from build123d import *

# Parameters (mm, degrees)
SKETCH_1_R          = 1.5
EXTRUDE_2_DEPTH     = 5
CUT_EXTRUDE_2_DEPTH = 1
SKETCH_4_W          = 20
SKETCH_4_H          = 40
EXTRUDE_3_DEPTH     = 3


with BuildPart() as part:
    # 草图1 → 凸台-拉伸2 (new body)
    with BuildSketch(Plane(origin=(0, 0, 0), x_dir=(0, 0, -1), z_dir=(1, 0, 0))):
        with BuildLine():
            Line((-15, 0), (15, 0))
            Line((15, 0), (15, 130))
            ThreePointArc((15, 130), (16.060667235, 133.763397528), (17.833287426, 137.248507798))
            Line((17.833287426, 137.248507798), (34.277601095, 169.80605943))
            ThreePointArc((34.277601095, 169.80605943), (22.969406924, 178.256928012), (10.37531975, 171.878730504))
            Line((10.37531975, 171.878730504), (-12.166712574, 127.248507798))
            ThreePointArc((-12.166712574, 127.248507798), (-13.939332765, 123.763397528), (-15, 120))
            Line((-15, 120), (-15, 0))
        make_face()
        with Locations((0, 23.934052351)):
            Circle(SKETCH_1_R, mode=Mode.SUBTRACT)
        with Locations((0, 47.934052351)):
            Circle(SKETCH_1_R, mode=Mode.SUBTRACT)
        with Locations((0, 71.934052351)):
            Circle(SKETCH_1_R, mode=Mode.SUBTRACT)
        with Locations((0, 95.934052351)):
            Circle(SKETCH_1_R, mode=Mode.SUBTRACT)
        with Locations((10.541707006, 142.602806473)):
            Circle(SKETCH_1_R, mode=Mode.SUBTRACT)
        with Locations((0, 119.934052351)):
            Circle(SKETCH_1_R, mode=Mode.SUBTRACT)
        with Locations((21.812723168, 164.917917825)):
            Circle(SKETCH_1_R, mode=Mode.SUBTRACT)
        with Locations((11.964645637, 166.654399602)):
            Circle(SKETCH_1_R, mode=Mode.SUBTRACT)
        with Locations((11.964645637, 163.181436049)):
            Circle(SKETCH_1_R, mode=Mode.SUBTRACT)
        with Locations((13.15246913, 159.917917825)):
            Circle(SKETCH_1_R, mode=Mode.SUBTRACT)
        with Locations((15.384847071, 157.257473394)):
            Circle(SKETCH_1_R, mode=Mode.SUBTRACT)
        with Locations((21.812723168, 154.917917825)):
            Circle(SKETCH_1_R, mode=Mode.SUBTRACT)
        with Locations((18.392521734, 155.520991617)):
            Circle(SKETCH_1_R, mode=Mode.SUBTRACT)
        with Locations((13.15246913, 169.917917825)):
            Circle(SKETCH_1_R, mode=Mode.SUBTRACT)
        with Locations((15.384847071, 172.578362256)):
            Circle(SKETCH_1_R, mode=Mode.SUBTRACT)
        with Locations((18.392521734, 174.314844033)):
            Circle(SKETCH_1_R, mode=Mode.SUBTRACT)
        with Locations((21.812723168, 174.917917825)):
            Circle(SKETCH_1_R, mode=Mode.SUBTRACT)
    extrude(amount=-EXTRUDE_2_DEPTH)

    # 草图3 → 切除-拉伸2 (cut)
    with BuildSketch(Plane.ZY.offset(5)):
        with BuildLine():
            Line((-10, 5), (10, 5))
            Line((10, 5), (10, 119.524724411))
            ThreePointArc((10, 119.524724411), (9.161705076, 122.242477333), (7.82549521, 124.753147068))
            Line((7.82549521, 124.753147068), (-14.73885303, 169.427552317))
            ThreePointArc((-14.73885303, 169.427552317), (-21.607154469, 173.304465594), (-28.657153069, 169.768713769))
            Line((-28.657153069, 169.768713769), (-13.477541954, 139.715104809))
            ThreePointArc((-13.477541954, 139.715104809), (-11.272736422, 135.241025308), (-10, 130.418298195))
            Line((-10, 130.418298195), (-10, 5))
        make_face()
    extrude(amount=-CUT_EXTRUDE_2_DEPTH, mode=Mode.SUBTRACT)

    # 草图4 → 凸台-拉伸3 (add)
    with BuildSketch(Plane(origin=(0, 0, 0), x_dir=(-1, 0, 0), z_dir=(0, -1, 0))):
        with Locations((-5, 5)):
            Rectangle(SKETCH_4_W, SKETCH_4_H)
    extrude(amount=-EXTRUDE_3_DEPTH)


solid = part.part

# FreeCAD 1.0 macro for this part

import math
import FreeCAD as App
import Part
import Sketcher

V = App.Vector
Q = App.Units.Quantity

doc = App.newDocument("Part")
params = doc.addObject("Spreadsheet::Sheet", "Params")
for row, (alias, value) in enumerate([
    ("sketch1_diameter", "3 mm"),
    ("sketch1_radius", "20 mm"),
    ("sketch1_width", "130 mm"),
    ("sketch1_width2", "120 mm"),
    ("sketch1_height", "30 mm"),
    ("pad1_length", "5 mm"),
    ("sketch2_radius", "15 mm"),
    ("sketch2_radius2", "25 mm"),
    ("sketch2_height", "20 mm"),
    ("pocket1_length", "1 mm"),
    ("sketch3_width", "20 mm"),
    ("sketch3_height", "40 mm"),
    ("pad2_length", "3 mm"),
], start=1):
    params.set(f"A{row}", alias)
    params.set(f"B{row}", "=" + value)
    params.setAlias(f"B{row}", alias)

body = doc.addObject("PartDesign::Body", "Body")

sketch1 = body.newObject("Sketcher::SketchObject", "Sketch")
sketch1.AttachmentSupport = (doc.getObject("YZ_Plane"), [""])
sketch1.MapMode = "FlatFace"
sketch1.addGeometry(Part.LineSegment(V(0, 15, 0), V(0, -15, 0)), False)
sketch1.addGeometry(Part.LineSegment(V(0, -15, 0), V(130, -15, 0)), False)
sketch1.addGeometry(Part.ArcOfCircle(Part.Circle(V(126.5, -34.7, 0), V(0, 0, 1), 20), math.radians(57), math.radians(80)), False)
sketch1.addGeometry(Part.LineSegment(V(137.2, -17.8, 0), V(169.8, -34.3, 0)), False)
sketch1.addGeometry(Part.ArcOfCircle(Part.Circle(V(164.9, -21.8, 0), V(0, 0, 1), 13.4), math.radians(-69), math.radians(59)), False)
sketch1.addGeometry(Part.LineSegment(V(171.9, -10.4, 0), V(127.2, 12.2, 0)), False)
sketch1.addGeometry(Part.ArcOfCircle(Part.Circle(V(116.5, -4.7, 0), V(0, 0, 1), 20), math.radians(57), math.radians(80)), False)
sketch1.addGeometry(Part.LineSegment(V(120, 15, 0), V(0, 15, 0)), False)
sketch1.addGeometry(Part.Circle(V(23.9, 0, 0), V(0, 0, 1), 1.5), False)
sketch1.addGeometry(Part.Circle(V(47.9, 0, 0), V(0, 0, 1), 1.5), False)
sketch1.addGeometry(Part.Circle(V(71.9, 0, 0), V(0, 0, 1), 1.5), False)
sketch1.addGeometry(Part.Circle(V(95.9, 0, 0), V(0, 0, 1), 1.5), False)
sketch1.addGeometry(Part.Circle(V(119.9, 0, 0), V(0, 0, 1), 1.5), False)
sketch1.addGeometry(Part.Circle(V(142.6, -10.5, 0), V(0, 0, 1), 1.5), False)
sketch1.addGeometry(Part.Circle(V(163.2, -12, 0), V(0, 0, 1), 1.5), False)
sketch1.addGeometry(Part.Circle(V(166.7, -12, 0), V(0, 0, 1), 1.5), False)
sketch1.addGeometry(Part.Circle(V(159.9, -13.2, 0), V(0, 0, 1), 1.5), False)
sketch1.addGeometry(Part.Circle(V(169.9, -13.2, 0), V(0, 0, 1), 1.5), False)
sketch1.addGeometry(Part.Circle(V(157.3, -15.4, 0), V(0, 0, 1), 1.5), False)
sketch1.addGeometry(Part.Circle(V(172.6, -15.4, 0), V(0, 0, 1), 1.5), False)
sketch1.addGeometry(Part.Circle(V(155.5, -18.4, 0), V(0, 0, 1), 1.5), False)
sketch1.addGeometry(Part.Circle(V(154.9, -21.8, 0), V(0, 0, 1), 1.5), False)
sketch1.addGeometry(Part.Circle(V(174.3, -18.4, 0), V(0, 0, 1), 1.5), False)
sketch1.addGeometry(Part.Circle(V(164.9, -21.8, 0), V(0, 0, 1), 1.5), False)
sketch1.addGeometry(Part.Circle(V(174.9, -21.8, 0), V(0, 0, 1), 1.5), False)
sketch1.addConstraint(Sketcher.Constraint("Coincident", 0, 2, 1, 1))
sketch1.addConstraint(Sketcher.Constraint("Coincident", 1, 2, 2, 2))
sketch1.addConstraint(Sketcher.Constraint("Coincident", 2, 1, 3, 1))
sketch1.addConstraint(Sketcher.Constraint("Coincident", 3, 2, 4, 1))
sketch1.addConstraint(Sketcher.Constraint("Coincident", 4, 2, 5, 1))
sketch1.addConstraint(Sketcher.Constraint("Coincident", 5, 2, 6, 1))
sketch1.addConstraint(Sketcher.Constraint("Coincident", 6, 2, 7, 1))
sketch1.addConstraint(Sketcher.Constraint("Coincident", 7, 2, 0, 1))
sketch1.addConstraint(Sketcher.Constraint("Vertical", 0))
sketch1.addConstraint(Sketcher.Constraint("Horizontal", 1))
sketch1.addConstraint(Sketcher.Constraint("Horizontal", 7))
sketch1.addConstraint(Sketcher.Constraint("Coincident", 23, 3, 4, 3))
sketch1.addConstraint(Sketcher.Constraint("Equal", 2, 6))
sketch1.addConstraint(Sketcher.Constraint("Equal", 8, 9))
sketch1.addConstraint(Sketcher.Constraint("Equal", 9, 10))
sketch1.addConstraint(Sketcher.Constraint("Equal", 10, 11))
sketch1.addConstraint(Sketcher.Constraint("Equal", 11, 12))
sketch1.addConstraint(Sketcher.Constraint("Equal", 12, 13))
sketch1.addConstraint(Sketcher.Constraint("Equal", 13, 14))
sketch1.addConstraint(Sketcher.Constraint("Equal", 14, 15))
sketch1.addConstraint(Sketcher.Constraint("Equal", 15, 16))
sketch1.addConstraint(Sketcher.Constraint("Equal", 16, 17))
sketch1.addConstraint(Sketcher.Constraint("Equal", 17, 18))
sketch1.addConstraint(Sketcher.Constraint("Equal", 18, 19))
sketch1.addConstraint(Sketcher.Constraint("Equal", 19, 20))
sketch1.addConstraint(Sketcher.Constraint("Equal", 20, 21))
sketch1.addConstraint(Sketcher.Constraint("Equal", 21, 22))
sketch1.addConstraint(Sketcher.Constraint("Equal", 22, 23))
sketch1.addConstraint(Sketcher.Constraint("Equal", 23, 24))
sketch1.addConstraint(Sketcher.Constraint("Symmetric", 0, 2, 7, 2, -1, 1))
sketch1.addConstraint(Sketcher.Constraint("PointOnObject", 8, 3, -1))
sketch1.addConstraint(Sketcher.Constraint("PointOnObject", 9, 3, -1))
sketch1.addConstraint(Sketcher.Constraint("PointOnObject", 10, 3, -1))
sketch1.addConstraint(Sketcher.Constraint("PointOnObject", 11, 3, -1))
sketch1.addConstraint(Sketcher.Constraint("PointOnObject", 12, 3, -1))
sketch1.addConstraint(Sketcher.Constraint("Parallel", 3, 5))
sketch1.addConstraint(Sketcher.Constraint("Horizontal", 14, 3, 15, 3))
sketch1.addConstraint(Sketcher.Constraint("Horizontal", 16, 3, 17, 3))
sketch1.addConstraint(Sketcher.Constraint("Horizontal", 18, 3, 19, 3))
sketch1.addConstraint(Sketcher.Constraint("Horizontal", 4, 3, 21, 3))
sketch1.addConstraint(Sketcher.Constraint("Horizontal", 20, 3, 22, 3))
sketch1.addConstraint(Sketcher.Constraint("Horizontal", 23, 3, 24, 3))
sketch1.addConstraint(Sketcher.Constraint("Diameter", 8, Q("3 mm")))
sketch1.addConstraint(Sketcher.Constraint("Radius", 2, Q("20 mm")))
sketch1.addConstraint(Sketcher.Constraint("DistanceX", 1, 1, 1, 2, Q("130 mm")))
sketch1.addConstraint(Sketcher.Constraint("DistanceX", 7, 2, 7, 1, Q("120 mm")))
sketch1.addConstraint(Sketcher.Constraint("DistanceY", 0, 2, 0, 1, Q("30 mm")))
sketch1.addConstraint(Sketcher.Constraint("Distance", 5, Q("50 mm")))
sketch1.addConstraint(Sketcher.Constraint("DistanceX", 6, 3, 2, 3, Q("10 mm")))
sketch1.addConstraint(Sketcher.Constraint("DistanceX", 8, 3, 9, 3, Q("24 mm")))
sketch1.addConstraint(Sketcher.Constraint("DistanceX", 9, 3, 10, 3, Q("24 mm")))
sketch1.addConstraint(Sketcher.Constraint("DistanceX", 10, 3, 11, 3, Q("24 mm")))
sketch1.addConstraint(Sketcher.Constraint("DistanceX", 11, 3, 12, 3, Q("24 mm")))
sketch1.addConstraint(Sketcher.Constraint("DistanceX", 16, 3, 4, 3, Q("5 mm")))
sketch1.addConstraint(Sketcher.Constraint("DistanceX", 16, 3, 17, 3, Q("10 mm")))
sketch1.addConstraint(Sketcher.Constraint("DistanceX", 21, 3, 4, 3, Q("10 mm")))
sketch1.addConstraint(Sketcher.Constraint("DistanceX", 23, 3, 24, 3, Q("10 mm")))
sketch1.addConstraint(Sketcher.Constraint("DistanceX", 5, 2, 2, 1, Q("10 mm")))
sketch1.addConstraint(Sketcher.Constraint("Radius", 4, Q("13.389067 mm")))
sketch1.addConstraint(Sketcher.Constraint("DistanceX", -1, 1, 15, 3, Q("166.6544 mm")))
sketch1.addConstraint(Sketcher.Constraint("DistanceY", 3, 2, -1, 1, Q("34.277601 mm")))
sketch1.addConstraint(Sketcher.Constraint("DistanceY", 18, 3, 14, 3, Q("3.420201 mm")))
sketch1.addConstraint(Sketcher.Constraint("DistanceY", 4, 3, 20, 3, Q("3.420201 mm")))
sketch1.addConstraint(Sketcher.Constraint("DistanceX", 2, 1, 13, 3, Q("5.354299 mm")))
sketch1.addConstraint(Sketcher.Constraint("DistanceY", 22, 3, 4, 2, Q("8.017202 mm")))
sketch1.addConstraint(Sketcher.Constraint("Distance", 3, Q("36.474781 mm")))
sketch1.addConstraint(Sketcher.Constraint("DistanceY", 16, 3, -1, 1, Q("13.152469 mm")))
sketch1.addConstraint(Sketcher.Constraint("DistanceX", -1, 1, 20, 3, Q("155.520992 mm")))
sketch1.addConstraint(Sketcher.Constraint("DistanceX", -1, 1, 3, 2, Q("169.806059 mm")))
sketch1.addConstraint(Sketcher.Constraint("DistanceX", 14, 3, 4, 3, Q("1.736482 mm")))
sketch1.addConstraint(Sketcher.Constraint("DistanceY", 14, 3, 13, 3, Q("1.422939 mm")))
sketch1.addConstraint(Sketcher.Constraint("DistanceX", 20, 3, 18, 3, Q("1.736482 mm")))
sketch1.addConstraint(Sketcher.Constraint("DistanceX", 19, 3, 22, 3, Q("1.736482 mm")))
sketch1.addConstraint(Sketcher.Constraint("DistanceY", 2, 1, 13, 3, Q("7.29158 mm")))
sketch1.addConstraint(Sketcher.Constraint("DistanceX", 4, 2, 19, 3, Q("0.699632 mm")))
sketch1.addConstraint(Sketcher.Constraint("DistanceX", -1, 1, 8, 3, Q("23.934052 mm")))
sketch1.setExpression("Constraints[42]", "Params.sketch1_diameter")
sketch1.setExpression("Constraints[43]", "Params.sketch1_radius")
sketch1.setExpression("Constraints[44]", "Params.sketch1_width")
sketch1.setExpression("Constraints[45]", "Params.sketch1_width2")
sketch1.setExpression("Constraints[46]", "Params.sketch1_height")
pad1 = body.newObject("PartDesign::Pad", "Pad")
pad1.Profile = sketch1
pad1.setExpression("Length", "Params.pad1_length")
pad1.Reversed = True

sketch2 = body.newObject("Sketcher::SketchObject", "Sketch001")
sketch2.AttachmentSupport = (doc.getObject("YZ_Plane"), [""])
sketch2.MapMode = "FlatFace"
sketch2.AttachmentOffset = App.Placement(V(0, 0, -5), App.Rotation())
sketch2.addGeometry(Part.LineSegment(V(5, -10, 0), V(5, 10, 0)), False)
sketch2.addGeometry(Part.LineSegment(V(5, 10, 0), V(120, 10, 0)), False)
sketch2.addGeometry(Part.ArcOfCircle(Part.Circle(V(116, -5, 0), V(0, 0, 1), 15), math.radians(57), math.radians(78)), False)
sketch2.addGeometry(Part.LineSegment(V(125, 8, 0), V(169, -15, 0)), False)
sketch2.addGeometry(Part.ArcOfCircle(Part.Circle(V(165, -22, 0), V(0, 0, 1), 8), math.radians(-55), math.radians(57)), False)
sketch2.addGeometry(Part.LineSegment(V(170, -29, 0), V(140, -13, 0)), False)
sketch2.addGeometry(Part.ArcOfCircle(Part.Circle(V(126, -35, 0), V(0, 0, 1), 25), math.radians(58), math.radians(81)), False)
sketch2.addGeometry(Part.LineSegment(V(130, -10, 0), V(5, -10, 0)), False)
sketch2.addConstraint(Sketcher.Constraint("Coincident", 0, 2, 1, 1))
sketch2.addConstraint(Sketcher.Constraint("Coincident", 1, 2, 2, 2))
sketch2.addConstraint(Sketcher.Constraint("Coincident", 2, 1, 3, 1))
sketch2.addConstraint(Sketcher.Constraint("Coincident", 3, 2, 4, 2))
sketch2.addConstraint(Sketcher.Constraint("Coincident", 4, 1, 5, 1))
sketch2.addConstraint(Sketcher.Constraint("Coincident", 5, 2, 6, 1))
sketch2.addConstraint(Sketcher.Constraint("Coincident", 6, 2, 7, 1))
sketch2.addConstraint(Sketcher.Constraint("Coincident", 7, 2, 0, 1))
sketch2.addConstraint(Sketcher.Constraint("Vertical", 0))
sketch2.addConstraint(Sketcher.Constraint("Horizontal", 1))
sketch2.addConstraint(Sketcher.Constraint("Horizontal", 7))
sketch2.addConstraint(Sketcher.Constraint("Parallel", 3, 5))
sketch2.addConstraint(Sketcher.Constraint("Radius", 2, Q("15 mm")))
sketch2.addConstraint(Sketcher.Constraint("Radius", 6, Q("25 mm")))
sketch2.addConstraint(Sketcher.Constraint("DistanceY", 0, 1, 0, 2, Q("20 mm")))
sketch2.addConstraint(Sketcher.Constraint("DistanceX", -1, 1, 0, 2, Q("5 mm")))
sketch2.addConstraint(Sketcher.Constraint("DistanceY", -1, 1, 0, 2, Q("10 mm")))
sketch2.addConstraint(Sketcher.Constraint("DistanceX", 2, 3, 6, 3, Q("10 mm")))
sketch2.addConstraint(Sketcher.Constraint("DistanceY", 6, 3, 2, 3, Q("30 mm")))
sketch2.addConstraint(Sketcher.Constraint("DistanceX", 7, 2, 7, 1, Q("125.418298 mm")))
sketch2.addConstraint(Sketcher.Constraint("Radius", 4, Q("8.389067 mm")))
sketch2.addConstraint(Sketcher.Constraint("Distance", 3, Q("50.049498 mm")))
sketch2.addConstraint(Sketcher.Constraint("DistanceY", 4, 1, 3, 2, Q("13.9183 mm")))
sketch2.addConstraint(Sketcher.Constraint("Distance", 5, Q("33.669571 mm")))
sketch2.addConstraint(Sketcher.Constraint("DistanceX", 1, 1, 1, 2, Q("114.524724 mm")))
sketch2.addConstraint(Sketcher.Constraint("DistanceY", 5, 2, -1, 1, Q("13.477542 mm")))
sketch2.addConstraint(Sketcher.Constraint("DistanceX", 2, 3, 4, 3, Q("48.435631 mm")))
sketch2.setExpression("Constraints[12]", "Params.sketch2_radius")
sketch2.setExpression("Constraints[13]", "Params.sketch2_radius2")
sketch2.setExpression("Constraints[14]", "Params.sketch2_height")
pocket1 = body.newObject("PartDesign::Pocket", "Pocket")
pocket1.Profile = sketch2
pocket1.setExpression("Length", "Params.pocket1_length")
pocket1.Reversed = True

sketch3 = body.newObject("Sketcher::SketchObject", "Sketch002")
sketch3.AttachmentSupport = (doc.getObject("XZ_Plane"), [""])
sketch3.MapMode = "FlatFace"
sketch3.addGeometry(Part.LineSegment(V(15, -25, 0), V(15, 15, 0)), False)
sketch3.addGeometry(Part.LineSegment(V(15, 15, 0), V(-5, 15, 0)), False)
sketch3.addGeometry(Part.LineSegment(V(-5, 15, 0), V(-5, -25, 0)), False)
sketch3.addGeometry(Part.LineSegment(V(-5, -25, 0), V(15, -25, 0)), False)
sketch3.addConstraint(Sketcher.Constraint("Coincident", 0, 2, 1, 1))
sketch3.addConstraint(Sketcher.Constraint("Coincident", 1, 2, 2, 1))
sketch3.addConstraint(Sketcher.Constraint("Coincident", 2, 2, 3, 1))
sketch3.addConstraint(Sketcher.Constraint("Coincident", 3, 2, 0, 1))
sketch3.addConstraint(Sketcher.Constraint("Vertical", 0))
sketch3.addConstraint(Sketcher.Constraint("Horizontal", 1))
sketch3.addConstraint(Sketcher.Constraint("Vertical", 2))
sketch3.addConstraint(Sketcher.Constraint("Horizontal", 3))
sketch3.addConstraint(Sketcher.Constraint("DistanceX", 1, 2, 1, 1, Q("20 mm")))
sketch3.addConstraint(Sketcher.Constraint("DistanceY", 0, 1, 0, 2, Q("40 mm")))
sketch3.addConstraint(Sketcher.Constraint("DistanceX", -1, 1, 0, 2, Q("15 mm")))
sketch3.addConstraint(Sketcher.Constraint("DistanceY", -1, 1, 0, 2, Q("15 mm")))
sketch3.setExpression("Constraints[8]", "Params.sketch3_width")
sketch3.setExpression("Constraints[9]", "Params.sketch3_height")
pad2 = body.newObject("PartDesign::Pad", "Pad001")
pad2.Profile = sketch3
pad2.setExpression("Length", "Params.pad2_length")
pad2.Reversed = True

doc.recompute()
